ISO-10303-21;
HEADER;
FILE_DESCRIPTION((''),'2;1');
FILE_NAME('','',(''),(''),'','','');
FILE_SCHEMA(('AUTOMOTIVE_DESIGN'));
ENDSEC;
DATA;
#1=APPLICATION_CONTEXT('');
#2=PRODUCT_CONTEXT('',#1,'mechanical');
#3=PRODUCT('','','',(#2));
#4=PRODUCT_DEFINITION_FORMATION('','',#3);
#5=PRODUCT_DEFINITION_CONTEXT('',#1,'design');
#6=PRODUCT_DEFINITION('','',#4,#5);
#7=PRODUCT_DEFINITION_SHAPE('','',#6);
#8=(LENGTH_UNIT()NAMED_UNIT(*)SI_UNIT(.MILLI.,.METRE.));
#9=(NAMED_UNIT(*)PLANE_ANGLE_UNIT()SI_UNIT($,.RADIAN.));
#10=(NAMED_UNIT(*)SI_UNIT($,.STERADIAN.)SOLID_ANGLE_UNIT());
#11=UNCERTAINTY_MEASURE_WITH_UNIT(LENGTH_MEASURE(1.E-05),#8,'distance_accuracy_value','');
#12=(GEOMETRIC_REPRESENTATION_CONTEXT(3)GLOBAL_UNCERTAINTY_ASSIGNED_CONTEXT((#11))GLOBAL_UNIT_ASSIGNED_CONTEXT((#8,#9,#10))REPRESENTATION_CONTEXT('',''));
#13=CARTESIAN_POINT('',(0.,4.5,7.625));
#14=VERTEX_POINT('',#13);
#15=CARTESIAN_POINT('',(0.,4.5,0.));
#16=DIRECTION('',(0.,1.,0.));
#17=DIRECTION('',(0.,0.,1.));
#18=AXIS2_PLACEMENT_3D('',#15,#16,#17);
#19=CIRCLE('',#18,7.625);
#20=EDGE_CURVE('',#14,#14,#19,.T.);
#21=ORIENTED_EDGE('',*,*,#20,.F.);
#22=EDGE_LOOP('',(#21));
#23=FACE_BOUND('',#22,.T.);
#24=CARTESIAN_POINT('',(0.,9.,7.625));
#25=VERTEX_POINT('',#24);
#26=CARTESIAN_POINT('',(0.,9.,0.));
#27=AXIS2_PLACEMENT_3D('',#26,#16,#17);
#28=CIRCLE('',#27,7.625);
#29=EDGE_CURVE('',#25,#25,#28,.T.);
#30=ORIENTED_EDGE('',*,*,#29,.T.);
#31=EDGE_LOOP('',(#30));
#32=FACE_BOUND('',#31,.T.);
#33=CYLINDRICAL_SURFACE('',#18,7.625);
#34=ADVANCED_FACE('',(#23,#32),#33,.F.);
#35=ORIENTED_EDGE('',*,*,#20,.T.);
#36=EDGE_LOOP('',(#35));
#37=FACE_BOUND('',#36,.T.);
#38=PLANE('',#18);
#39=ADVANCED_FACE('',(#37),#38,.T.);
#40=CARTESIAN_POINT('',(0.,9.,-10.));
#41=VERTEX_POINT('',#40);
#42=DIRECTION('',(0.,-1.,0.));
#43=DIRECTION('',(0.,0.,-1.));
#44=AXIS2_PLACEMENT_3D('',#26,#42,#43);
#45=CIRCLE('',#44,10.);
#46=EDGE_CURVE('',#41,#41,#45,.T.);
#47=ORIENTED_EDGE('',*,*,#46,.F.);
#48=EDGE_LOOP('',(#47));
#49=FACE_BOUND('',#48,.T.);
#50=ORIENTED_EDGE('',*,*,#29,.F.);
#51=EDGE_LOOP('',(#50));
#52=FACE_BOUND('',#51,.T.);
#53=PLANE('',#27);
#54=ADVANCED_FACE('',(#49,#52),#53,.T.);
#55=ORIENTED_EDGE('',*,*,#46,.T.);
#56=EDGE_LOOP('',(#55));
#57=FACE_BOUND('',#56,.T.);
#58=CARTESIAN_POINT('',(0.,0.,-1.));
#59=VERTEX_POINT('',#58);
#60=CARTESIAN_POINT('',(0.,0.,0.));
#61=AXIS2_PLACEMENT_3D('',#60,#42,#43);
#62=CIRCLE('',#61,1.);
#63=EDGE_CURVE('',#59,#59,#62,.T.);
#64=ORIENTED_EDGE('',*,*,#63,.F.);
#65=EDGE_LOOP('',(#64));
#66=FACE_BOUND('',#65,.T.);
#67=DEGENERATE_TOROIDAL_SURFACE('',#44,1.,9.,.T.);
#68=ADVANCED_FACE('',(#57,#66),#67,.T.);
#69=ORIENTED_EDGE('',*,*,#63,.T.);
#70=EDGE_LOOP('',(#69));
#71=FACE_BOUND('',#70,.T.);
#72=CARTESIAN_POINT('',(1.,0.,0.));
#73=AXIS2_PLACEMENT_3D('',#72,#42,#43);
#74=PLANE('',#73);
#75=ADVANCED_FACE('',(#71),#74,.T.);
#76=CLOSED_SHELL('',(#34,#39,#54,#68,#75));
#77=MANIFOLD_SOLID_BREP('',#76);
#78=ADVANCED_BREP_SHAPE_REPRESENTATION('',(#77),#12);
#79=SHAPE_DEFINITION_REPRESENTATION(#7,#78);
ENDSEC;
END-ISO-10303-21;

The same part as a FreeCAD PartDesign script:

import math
import FreeCAD as App
import Part
import Sketcher

V = App.Vector
Q = App.Units.Quantity

doc = App.newDocument("Part")
body = doc.addObject("PartDesign::Body", "Body")

# Sketch on XY plane
sketch1 = doc.addObject("Sketcher::SketchObject", "Sketch")
body.addObject(sketch1)
sketch1.AttachmentSupport = (doc.XY_Plane, [""])
sketch1.MapMode = "FlatFace"
sketch1.addGeometry([
    Part.LineSegment(V(10, 9, 0), V(0, 9, 0)),
    Part.LineSegment(V(0, 9, 0), V(0, 0, 0)),
    Part.LineSegment(V(0, 0, 0), V(1, 0, 0)),
    Part.ArcOfCircle(Part.Circle(V(1, 9, 0), V(0, 0, 1), 9), math.radians(-90), math.radians(0)),
], False)
sketch1.addConstraint([
    Sketcher.Constraint("Coincident", 0, 2, 1, 1),
    Sketcher.Constraint("Coincident", 1, 2, 2, 1),
    Sketcher.Constraint("Tangent", 2, 2, 3, 1),
    Sketcher.Constraint("Coincident", 3, 2, 0, 1),
    Sketcher.Constraint("Horizontal", 0),
    Sketcher.Constraint("Vertical", 1),
    Sketcher.Constraint("Horizontal", 2),
    Sketcher.Constraint("Coincident", 1, 2, -1, 1),
    Sketcher.Constraint("Horizontal", 3, 3, 0, 2),
    Sketcher.Constraint("Radius", 3, Q("9 mm")),
    Sketcher.Constraint("DistanceX", 0, 2, 0, 1, Q("10 mm")),
])
revolution = doc.addObject("PartDesign::Revolution", "Revolution")
body.addObject(revolution)
revolution.Profile = sketch1
revolution.ReferenceAxis = (sketch1, ["V_Axis"])
revolution.Angle = 360

# Sketch on XZ plane
sketch2 = doc.addObject("Sketcher::SketchObject", "Sketch001")
body.addObject(sketch2)
sketch2.AttachmentSupport = (doc.XZ_Plane, [""])
sketch2.MapMode = "FlatFace"
sketch2.AttachmentOffset = App.Placement(V(0, 0, -9), App.Rotation())
sketch2.addGeometry(Part.Circle(V(0, 0, 0), V(0, 0, 1), 8), False)
sketch2.addConstraint([
    Sketcher.Constraint("Coincident", 0, 3, -1, 1),
    Sketcher.Constraint("Diameter", 0, Q("15.25 mm")),
])
pocket1 = doc.addObject("PartDesign::Pocket", "Pocket")
body.addObject(pocket1)
pocket1.Profile = sketch2
pocket1.Length = 4.5
pocket1.Reversed = True

doc.recompute()
